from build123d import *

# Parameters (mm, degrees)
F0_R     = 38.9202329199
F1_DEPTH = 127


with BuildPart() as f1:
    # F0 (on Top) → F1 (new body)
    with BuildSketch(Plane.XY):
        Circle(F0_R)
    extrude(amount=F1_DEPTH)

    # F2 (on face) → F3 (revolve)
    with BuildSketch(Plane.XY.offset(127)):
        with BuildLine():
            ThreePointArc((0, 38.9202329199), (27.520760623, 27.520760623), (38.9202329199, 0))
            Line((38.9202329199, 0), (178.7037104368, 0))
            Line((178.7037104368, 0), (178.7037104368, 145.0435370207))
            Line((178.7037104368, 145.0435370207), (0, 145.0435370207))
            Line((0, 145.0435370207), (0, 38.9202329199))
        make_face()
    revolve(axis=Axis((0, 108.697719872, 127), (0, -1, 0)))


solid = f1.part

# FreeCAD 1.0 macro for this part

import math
import FreeCAD as App
import Part
import Sketcher
Q = App.Units.Quantity

doc = App.newDocument("Part")
body = doc.addObject("PartDesign::Body", "Body")

# Sketch on XY plane
sketch1 = doc.addObject("Sketcher::SketchObject", "Sketch")
body.addObject(sketch1)
sketch1.AttachmentSupport = (doc.XY_Plane, [""])
sketch1.MapMode = "FlatFace"
sketch1.addGeometry(Part.Circle(App.Vector(0, 0, 0), App.Vector(0, 0, 1), 39), False)
sketch1.addConstraint([
    Sketcher.Constraint("Coincident", 0, 3, -1, 1),
    Sketcher.Constraint("Diameter", 0, Q("77.840466 mm")),
])
pad1 = doc.addObject("PartDesign::Pad", "Pad")
body.addObject(pad1)
pad1.Profile = sketch1
pad1.Length = Q("5 in")

# Sketch on XY plane
sketch2 = doc.addObject("Sketcher::SketchObject", "Sketch001")
body.addObject(sketch2)
sketch2.AttachmentSupport = (doc.XY_Plane, [""])
sketch2.MapMode = "FlatFace"
sketch2.AttachmentOffset = App.Placement(App.Vector(0, 0, 5 * 25.4), App.Rotation())
sketch2.addGeometry([
    Part.ArcOfCircle(Part.Circle(App.Vector(0, 0, 0), App.Vector(0, 0, 1), 39), math.radians(0), math.radians(90)),  # 0
    Part.LineSegment(App.Vector(39, 0, 0), App.Vector(179, 0, 0)),  # 1
    Part.LineSegment(App.Vector(179, 0, 0), App.Vector(179, 145, 0)),  # 2
    Part.LineSegment(App.Vector(179, 145, 0), App.Vector(0, 145, 0)),  # 3
    Part.LineSegment(App.Vector(0, 145, 0), App.Vector(0, 39, 0)),  # 4
], False)
sketch2.addConstraint([
    Sketcher.Constraint("Coincident", 0, 1, 1, 1),
    Sketcher.Constraint("Coincident", 1, 2, 2, 1),
    Sketcher.Constraint("Coincident", 2, 2, 3, 1),
    Sketcher.Constraint("Coincident", 3, 2, 4, 1),
    Sketcher.Constraint("Coincident", 4, 2, 0, 2),
    Sketcher.Constraint("Horizontal", 1),
    Sketcher.Constraint("Vertical", 2),
    Sketcher.Constraint("Horizontal", 3),
    Sketcher.Constraint("Vertical", 4),
    Sketcher.Constraint("Coincident", 0, 3, -1, 1),
    Sketcher.Constraint("PointOnObject", 0, 1, -1),
    Sketcher.Constraint("PointOnObject", 3, 2, -2),
    Sketcher.Constraint("Radius", 0, Q("38.920233 mm")),
    Sketcher.Constraint("DistanceX", 3, 2, 3, 1, Q("178.70371 mm")),
    Sketcher.Constraint("DistanceY", 2, 1, 2, 2, Q("145.043537 mm")),
])
revolution = doc.addObject("PartDesign::Revolution", "Revolution")
body.addObject(revolution)
revolution.Profile = sketch2
revolution.ReferenceAxis = (sketch2, ["V_Axis"])
revolution.Angle = 360

doc.recompute()
